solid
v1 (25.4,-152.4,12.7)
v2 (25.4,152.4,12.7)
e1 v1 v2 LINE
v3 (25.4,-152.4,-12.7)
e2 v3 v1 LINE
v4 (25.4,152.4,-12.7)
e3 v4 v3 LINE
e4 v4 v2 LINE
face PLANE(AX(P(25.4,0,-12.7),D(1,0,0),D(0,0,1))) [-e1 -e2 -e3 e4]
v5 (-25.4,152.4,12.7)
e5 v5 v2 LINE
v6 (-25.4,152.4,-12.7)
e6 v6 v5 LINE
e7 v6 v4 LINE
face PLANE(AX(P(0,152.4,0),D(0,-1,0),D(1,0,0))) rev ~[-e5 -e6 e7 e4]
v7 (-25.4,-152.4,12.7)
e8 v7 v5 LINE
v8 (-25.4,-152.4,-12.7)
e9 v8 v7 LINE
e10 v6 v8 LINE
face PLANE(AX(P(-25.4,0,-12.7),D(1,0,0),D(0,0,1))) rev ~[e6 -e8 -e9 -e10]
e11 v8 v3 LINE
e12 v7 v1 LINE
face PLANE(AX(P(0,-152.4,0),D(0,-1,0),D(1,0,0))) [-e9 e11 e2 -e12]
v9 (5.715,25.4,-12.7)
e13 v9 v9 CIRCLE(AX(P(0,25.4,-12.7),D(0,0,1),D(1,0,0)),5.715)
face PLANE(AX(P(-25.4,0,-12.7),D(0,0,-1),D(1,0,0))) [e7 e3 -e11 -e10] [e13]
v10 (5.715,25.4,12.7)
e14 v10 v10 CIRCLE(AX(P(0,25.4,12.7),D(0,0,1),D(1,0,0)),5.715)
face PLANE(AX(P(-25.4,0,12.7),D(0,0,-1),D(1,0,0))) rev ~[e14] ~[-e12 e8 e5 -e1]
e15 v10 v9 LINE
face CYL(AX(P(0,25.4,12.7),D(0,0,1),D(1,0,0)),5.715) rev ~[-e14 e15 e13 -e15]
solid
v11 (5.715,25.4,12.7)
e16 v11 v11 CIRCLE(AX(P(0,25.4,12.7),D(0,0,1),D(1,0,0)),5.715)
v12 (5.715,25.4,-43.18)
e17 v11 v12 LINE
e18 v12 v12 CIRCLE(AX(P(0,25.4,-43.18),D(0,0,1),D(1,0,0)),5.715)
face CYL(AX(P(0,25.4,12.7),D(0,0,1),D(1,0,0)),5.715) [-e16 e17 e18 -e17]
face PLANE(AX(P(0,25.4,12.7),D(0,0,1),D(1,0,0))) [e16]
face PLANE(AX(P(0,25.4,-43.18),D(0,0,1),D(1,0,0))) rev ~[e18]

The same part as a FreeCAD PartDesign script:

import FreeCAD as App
import Part
import Sketcher
Q = App.Units.Quantity


def add_polygon(sketch, points):
    """Adds a closed chain of lines whose ends are joined by coincident constraints."""
    first, n = sketch.GeometryCount, len(points)
    for a, b in zip(points, points[1:] + points[:1]):
        sketch.addGeometry(Part.LineSegment(App.Vector(*a, 0), App.Vector(*b, 0)), False)
    for i in range(n):
        sketch.addConstraint(Sketcher.Constraint("Coincident", first + i, 2, first + (i + 1) % n, 1))

doc = App.newDocument("Part")
params = doc.addObject("Spreadsheet::Sheet", "Params")
for row, (alias, value) in enumerate([
    ("sketch1_width", "2 in"),
    ("sketch1_height", "1 in"),
    ("pad1_length", "12 in"),
    ("sketch2_diameter", "0.45 in"),
    ("sketch3_diameter", "0.45 in"),
    ("pad2_length", "2.2 in"),
], start=1):
    params.set(f"A{row}", alias)
    params.set(f"B{row}", "=" + value)
    params.setAlias(f"B{row}", alias)

body = doc.addObject("PartDesign::Body", "Body")

sketch1 = body.newObject("Sketcher::SketchObject", "Sketch")
sketch1.AttachmentSupport = (doc.getObject("XZ_Plane"), [""])
sketch1.MapMode = "FlatFace"
add_polygon(sketch1, [(-25, 13), (-25, -13), (25, -13), (25, 13)])
sketch1.addConstraint(Sketcher.Constraint("Vertical", 0))
sketch1.addConstraint(Sketcher.Constraint("Horizontal", 1))
sketch1.addConstraint(Sketcher.Constraint("Vertical", 2))
sketch1.addConstraint(Sketcher.Constraint("Horizontal", 3))
sketch1.addConstraint(Sketcher.Constraint("Symmetric", 0, 2, 2, 2, -1, 1))
sketch1.addConstraint(Sketcher.Constraint("DistanceX", 1, 1, 1, 2, Q("2 in")))
sketch1.addConstraint(Sketcher.Constraint("DistanceY", 0, 2, 0, 1, Q("1 in")))
sketch1.setExpression("Constraints[9]", "Params.sketch1_width")
sketch1.setExpression("Constraints[10]", "Params.sketch1_height")
pad1 = body.newObject("PartDesign::Pad", "Pad")
pad1.Profile = sketch1
pad1.setExpression("Length", "Params.pad1_length")
pad1.Midplane = True

sketch2 = body.newObject("Sketcher::SketchObject", "Sketch001")
sketch2.AttachmentSupport = (doc.getObject("XY_Plane"), [""])
sketch2.MapMode = "FlatFace"
sketch2.AttachmentOffset = App.Placement(App.Vector(0, 0, 0.5 * 25.4), App.Rotation())
sketch2.addGeometry(Part.Circle(App.Vector(0, 25, 0), App.Vector(0, 0, 1), 6), False)
sketch2.addConstraint(Sketcher.Constraint("PointOnObject", 0, 3, -2))
sketch2.addConstraint(Sketcher.Constraint("Diameter", 0, Q("0.45 in")))
sketch2.addConstraint(Sketcher.Constraint("DistanceY", -1, 1, 0, 3, Q("1 in")))
sketch2.setExpression("Constraints[1]", "Params.sketch2_diameter")
pocket1 = body.newObject("PartDesign::Pocket", "Pocket")
pocket1.Profile = sketch2
pocket1.Type = "ThroughAll"
body2 = doc.addObject("PartDesign::Body", "Body001")

sketch3 = body2.newObject("Sketcher::SketchObject", "Sketch002")
sketch3.AttachmentSupport = (doc.getObject("XY_Plane001"), [""])
sketch3.MapMode = "FlatFace"
sketch3.AttachmentOffset = App.Placement(App.Vector(0, 0, 0.5 * 25.4), App.Rotation())
sketch3.addGeometry(Part.Circle(App.Vector(0, 25, 0), App.Vector(0, 0, 1), 6), False)
sketch3.addConstraint(Sketcher.Constraint("PointOnObject", 0, 3, -2))
sketch3.addConstraint(Sketcher.Constraint("Diameter", 0, Q("0.45 in")))
sketch3.addConstraint(Sketcher.Constraint("DistanceY", -1, 1, 0, 3, Q("1 in")))
sketch3.setExpression("Constraints[1]", "Params.sketch3_diameter")
pad2 = body2.newObject("PartDesign::Pad", "Pad001")
pad2.Profile = sketch3
pad2.setExpression("Length", "Params.pad2_length")
pad2.Reversed = True

doc.recompute()
